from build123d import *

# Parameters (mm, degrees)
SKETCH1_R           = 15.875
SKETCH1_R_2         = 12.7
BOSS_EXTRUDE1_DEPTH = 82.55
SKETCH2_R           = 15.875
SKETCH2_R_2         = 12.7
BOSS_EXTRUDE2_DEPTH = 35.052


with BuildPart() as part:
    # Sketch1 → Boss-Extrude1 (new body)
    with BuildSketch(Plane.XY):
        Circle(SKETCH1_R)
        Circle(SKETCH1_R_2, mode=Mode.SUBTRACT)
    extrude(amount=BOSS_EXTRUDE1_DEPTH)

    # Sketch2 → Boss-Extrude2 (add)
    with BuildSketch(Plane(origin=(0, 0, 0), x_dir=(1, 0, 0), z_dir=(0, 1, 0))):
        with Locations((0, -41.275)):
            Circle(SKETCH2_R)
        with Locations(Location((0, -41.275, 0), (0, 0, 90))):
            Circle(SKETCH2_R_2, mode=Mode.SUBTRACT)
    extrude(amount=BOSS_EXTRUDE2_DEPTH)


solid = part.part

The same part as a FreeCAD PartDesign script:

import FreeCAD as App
import Part
import Sketcher

V = App.Vector
Q = App.Units.Quantity

doc = App.newDocument("Part")
params = doc.addObject("Spreadsheet::Sheet", "Params")
for row, (alias, value) in enumerate([
    ("sketch1_diameter", "1 in"),
    ("sketch1_diameter2", "1.25 in"),
    ("pad1_length", "3.25 in"),
    ("sketch2_diameter", "1 in"),
    ("sketch2_diameter2", "1.25 in"),
    ("pad2_length", "1.38 in"),
], start=1):
    params.set(f"A{row}", alias)
    params.set(f"B{row}", "=" + value)
    params.setAlias(f"B{row}", alias)

body = doc.addObject("PartDesign::Body", "Body")

sketch1 = doc.addObject("Sketcher::SketchObject", "Sketch")
body.addObject(sketch1)
sketch1.AttachmentSupport = (doc.XY_Plane, [""])
sketch1.MapMode = "FlatFace"
sketch1.addGeometry(Part.Circle(V(0, 0, 0), V(0, 0, 1), 16), False)
sketch1.addGeometry(Part.Circle(V(0, 0, 0), V(0, 0, 1), 13), False)
sketch1.addConstraint(Sketcher.Constraint("Coincident", 0, 3, -1, 1))
sketch1.addConstraint(Sketcher.Constraint("Coincident", 1, 3, -1, 1))
sketch1.addConstraint(Sketcher.Constraint("Diameter", 1, Q("1 in")))
sketch1.addConstraint(Sketcher.Constraint("Diameter", 0, Q("1.25 in")))
sketch1.setExpression("Constraints[2]", "Params.sketch1_diameter")
sketch1.setExpression("Constraints[3]", "Params.sketch1_diameter2")
pad1 = doc.addObject("PartDesign::Pad", "Pad")
body.addObject(pad1)
pad1.Profile = sketch1
pad1.setExpression("Length", "Params.pad1_length")

sketch2 = doc.addObject("Sketcher::SketchObject", "Sketch001")
body.addObject(sketch2)
sketch2.AttachmentSupport = (doc.XZ_Plane, [""])
sketch2.MapMode = "FlatFace"
sketch2.addGeometry(Part.Circle(V(0, 41, 0), V(0, 0, 1), 16), False)
sketch2.addGeometry(Part.Circle(V(0, 41, 0), V(0, 0, 1), 13), False)
sketch2.addConstraint(Sketcher.Constraint("Coincident", 1, 3, 0, 3))
sketch2.addConstraint(Sketcher.Constraint("PointOnObject", 0, 3, -2))
sketch2.addConstraint(Sketcher.Constraint("Diameter", 1, Q("1 in")))
sketch2.addConstraint(Sketcher.Constraint("Diameter", 0, Q("1.25 in")))
sketch2.addConstraint(Sketcher.Constraint("DistanceY", -1, 1, 0, 3, Q("1.625 in")))
sketch2.setExpression("Constraints[2]", "Params.sketch2_diameter")
sketch2.setExpression("Constraints[3]", "Params.sketch2_diameter2")
pad2 = doc.addObject("PartDesign::Pad", "Pad001")
body.addObject(pad2)
pad2.Profile = sketch2
pad2.setExpression("Length", "Params.pad2_length")
pad2.Reversed = True

doc.recompute()
